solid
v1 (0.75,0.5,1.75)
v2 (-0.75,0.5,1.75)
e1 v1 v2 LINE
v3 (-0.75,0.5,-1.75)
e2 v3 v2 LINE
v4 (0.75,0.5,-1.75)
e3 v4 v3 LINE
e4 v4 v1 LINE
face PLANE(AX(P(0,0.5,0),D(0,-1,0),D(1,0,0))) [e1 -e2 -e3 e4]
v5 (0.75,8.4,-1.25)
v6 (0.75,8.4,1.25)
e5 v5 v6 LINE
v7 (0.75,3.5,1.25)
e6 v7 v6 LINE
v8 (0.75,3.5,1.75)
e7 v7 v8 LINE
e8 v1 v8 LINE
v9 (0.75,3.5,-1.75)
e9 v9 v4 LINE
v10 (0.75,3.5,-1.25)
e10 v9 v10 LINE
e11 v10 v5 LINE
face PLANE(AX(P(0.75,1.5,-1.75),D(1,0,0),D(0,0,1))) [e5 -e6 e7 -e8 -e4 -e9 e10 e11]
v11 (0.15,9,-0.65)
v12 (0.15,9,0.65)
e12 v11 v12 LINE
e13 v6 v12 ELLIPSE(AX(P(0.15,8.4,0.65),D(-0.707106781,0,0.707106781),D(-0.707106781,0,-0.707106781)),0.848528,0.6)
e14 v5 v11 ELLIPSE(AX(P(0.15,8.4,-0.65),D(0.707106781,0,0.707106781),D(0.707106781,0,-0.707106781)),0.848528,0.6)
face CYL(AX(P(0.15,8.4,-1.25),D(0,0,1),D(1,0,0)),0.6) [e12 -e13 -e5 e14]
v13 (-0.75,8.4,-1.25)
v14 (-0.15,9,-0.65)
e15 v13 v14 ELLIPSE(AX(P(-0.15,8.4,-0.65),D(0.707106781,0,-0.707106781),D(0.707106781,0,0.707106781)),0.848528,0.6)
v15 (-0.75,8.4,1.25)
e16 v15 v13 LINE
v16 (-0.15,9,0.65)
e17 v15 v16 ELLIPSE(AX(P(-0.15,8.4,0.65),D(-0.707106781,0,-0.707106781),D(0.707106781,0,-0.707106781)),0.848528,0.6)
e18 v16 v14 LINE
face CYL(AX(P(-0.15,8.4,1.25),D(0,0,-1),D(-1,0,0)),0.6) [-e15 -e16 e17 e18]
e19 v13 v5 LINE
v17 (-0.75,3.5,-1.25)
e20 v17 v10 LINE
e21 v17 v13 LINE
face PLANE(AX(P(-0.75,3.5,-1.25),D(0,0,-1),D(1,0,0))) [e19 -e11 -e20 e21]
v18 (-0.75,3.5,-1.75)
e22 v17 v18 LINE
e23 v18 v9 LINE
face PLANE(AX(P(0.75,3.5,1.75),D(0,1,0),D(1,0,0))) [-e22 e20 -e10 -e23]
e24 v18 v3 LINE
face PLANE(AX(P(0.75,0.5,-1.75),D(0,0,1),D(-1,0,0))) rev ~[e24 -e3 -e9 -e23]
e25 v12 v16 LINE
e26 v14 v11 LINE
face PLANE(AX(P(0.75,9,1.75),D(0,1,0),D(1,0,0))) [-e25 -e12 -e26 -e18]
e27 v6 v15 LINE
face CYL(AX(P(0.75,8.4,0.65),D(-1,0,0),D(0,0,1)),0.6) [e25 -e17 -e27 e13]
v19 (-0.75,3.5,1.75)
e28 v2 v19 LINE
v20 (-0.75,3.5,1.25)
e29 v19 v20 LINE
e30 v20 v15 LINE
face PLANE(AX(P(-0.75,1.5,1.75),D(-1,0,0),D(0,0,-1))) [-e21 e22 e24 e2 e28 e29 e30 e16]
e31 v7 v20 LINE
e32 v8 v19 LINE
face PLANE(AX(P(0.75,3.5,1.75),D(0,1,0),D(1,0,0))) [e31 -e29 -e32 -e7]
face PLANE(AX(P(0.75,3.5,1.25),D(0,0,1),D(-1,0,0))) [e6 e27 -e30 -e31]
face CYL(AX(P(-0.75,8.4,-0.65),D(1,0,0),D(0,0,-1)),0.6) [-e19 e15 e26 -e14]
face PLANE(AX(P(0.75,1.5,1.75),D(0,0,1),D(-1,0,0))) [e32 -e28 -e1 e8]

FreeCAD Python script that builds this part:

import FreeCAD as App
import Part
import Sketcher


def edges_at(feature, points):
    """Names of the edges that pass closest to the given points."""
    edges = feature.Shape.Edges
    near = lambda p: min(range(len(edges)), key=lambda i: edges[i].distToShape(Part.Vertex(*p))[0])
    return sorted({f"Edge{near(p) + 1}" for p in points})

doc = App.newDocument("Part")
body = doc.addObject("PartDesign::Body", "Body")
body.AllowCompound = True

# Sketch on XZ plane
sketch1 = body.newObject("Sketcher::SketchObject", "Sketch")
sketch1.AttachmentSupport = (doc.getObject("XZ_Plane"), [""])
sketch1.MapMode = "FlatFace"
sketch1.addGeometry(Part.LineSegment(App.Vector(-0.75, -1.6, 0), App.Vector(0.75, -1.6, 0)), False)
sketch1.addGeometry(Part.LineSegment(App.Vector(0.75, -1.6, 0), App.Vector(0.75, -2.6, 0)), False)
sketch1.addGeometry(Part.LineSegment(App.Vector(0.75, -2.6, 0), App.Vector(-0.75, -2.6, 0)), False)
sketch1.addGeometry(Part.LineSegment(App.Vector(-0.75, -2.6, 0), App.Vector(-0.75, -1.6, 0)), False)
sketch1.addGeometry(Part.LineSegment(App.Vector(0.75, 2.6, 0), App.Vector(0.75, 1.6, 0)), False)
sketch1.addGeometry(Part.LineSegment(App.Vector(0.75, 1.6, 0), App.Vector(-0.75, 1.6, 0)), False)
sketch1.addGeometry(Part.LineSegment(App.Vector(-0.75, 1.6, 0), App.Vector(-0.75, 2.6, 0)), False)
sketch1.addGeometry(Part.LineSegment(App.Vector(-0.75, 2.6, 0), App.Vector(0.75, 2.6, 0)), False)
sketch1.addConstraint(Sketcher.Constraint("Coincident", 0, 2, 1, 1))
sketch1.addConstraint(Sketcher.Constraint("Coincident", 1, 2, 2, 1))
sketch1.addConstraint(Sketcher.Constraint("Coincident", 2, 2, 3, 1))
sketch1.addConstraint(Sketcher.Constraint("Coincident", 3, 2, 0, 1))
sketch1.addConstraint(Sketcher.Constraint("Coincident", 4, 2, 5, 1))
sketch1.addConstraint(Sketcher.Constraint("Coincident", 5, 2, 6, 1))
sketch1.addConstraint(Sketcher.Constraint("Coincident", 6, 2, 7, 1))
sketch1.addConstraint(Sketcher.Constraint("Coincident", 7, 2, 4, 1))
sketch1.addConstraint(Sketcher.Constraint("Horizontal", 0))
sketch1.addConstraint(Sketcher.Constraint("Vertical", 1))
sketch1.addConstraint(Sketcher.Constraint("Horizontal", 2))
sketch1.addConstraint(Sketcher.Constraint("Vertical", 3))
sketch1.addConstraint(Sketcher.Constraint("Vertical", 4))
sketch1.addConstraint(Sketcher.Constraint("Horizontal", 5))
sketch1.addConstraint(Sketcher.Constraint("Vertical", 6))
sketch1.addConstraint(Sketcher.Constraint("Horizontal", 7))
sketch1.addConstraint(Sketcher.Constraint("Symmetric", 3, 2, 4, 2, -1, 1))
sketch1.addConstraint(Sketcher.Constraint("Symmetric", 1, 2, 6, 2, -1, 1))
sketch1.addConstraint(Sketcher.Constraint("Vertical", 1, 2, 4, 2))
sketch1.addConstraint(Sketcher.Constraint("DistanceY", 1, 2, 1, 1, 1.0))
sketch1.addConstraint(Sketcher.Constraint("DistanceX", 0, 1, 0, 2, 1.5))
sketch1.addConstraint(Sketcher.Constraint("DistanceY", 0, 2, 4, 2, 3.2))
pad1 = body.newObject("PartDesign::Pad", "Pad")
pad1.Profile = sketch1
pad1.Length = 0.5
pad1.Reversed = True

# Sketch on YZ plane
sketch2 = body.newObject("Sketcher::SketchObject", "Sketch001")
sketch2.AttachmentSupport = (doc.getObject("YZ_Plane"), [""])
sketch2.MapMode = "FlatFace"
sketch2.AttachmentOffset = App.Placement(App.Vector(0, 0, 0.75), App.Rotation())
sketch2.addGeometry(Part.LineSegment(App.Vector(1.5, 1.75, 0), App.Vector(0.5, 2.6, 0)), False)
sketch2.addGeometry(Part.LineSegment(App.Vector(0.5, 2.6, 0), App.Vector(0.5, -2.6, 0)), False)
sketch2.addGeometry(Part.LineSegment(App.Vector(0.5, -2.6, 0), App.Vector(1.5, -1.75, 0)), False)
sketch2.addGeometry(Part.LineSegment(App.Vector(1.5, -1.75, 0), App.Vector(1.5, 1.75, 0)), False)
sketch2.addConstraint(Sketcher.Constraint("Coincident", 0, 2, 1, 1))
sketch2.addConstraint(Sketcher.Constraint("Coincident", 1, 2, 2, 1))
sketch2.addConstraint(Sketcher.Constraint("Coincident", 2, 2, 3, 1))
sketch2.addConstraint(Sketcher.Constraint("Coincident", 3, 2, 0, 1))
sketch2.addConstraint(Sketcher.Constraint("Vertical", 1))
sketch2.addConstraint(Sketcher.Constraint("Vertical", 3))
sketch2.addConstraint(Sketcher.Constraint("Equal", 0, 2))
sketch2.addConstraint(Sketcher.Constraint("DistanceY", 3, 1, 3, 2, 3.5))
sketch2.addConstraint(Sketcher.Constraint("DistanceX", 1, 2, 2, 2, 1.0))
sketch2.addConstraint(Sketcher.Constraint("DistanceY", 1, 2, 1, 1, 5.2))
sketch2.addConstraint(Sketcher.Constraint("DistanceX", -1, 1, 0, 2, 0.5))
sketch2.addConstraint(Sketcher.Constraint("DistanceY", -1, 1, 0, 2, 2.6))
pad2 = body.newObject("PartDesign::Pad", "Pad001")
pad2.Profile = sketch2
pad2.Length = 1.5
pad2.Reversed = True

# Sketch on XZ plane
sketch3 = body.newObject("Sketcher::SketchObject", "Sketch002")
sketch3.AttachmentSupport = (doc.getObject("XZ_Plane"), [""])
sketch3.MapMode = "FlatFace"
sketch3.AttachmentOffset = App.Placement(App.Vector(0, 0, -1.5), App.Rotation())
sketch3.addGeometry(Part.LineSegment(App.Vector(-0.75, -1.75, 0), App.Vector(-0.75, 1.75, 0)), False)
sketch3.addGeometry(Part.LineSegment(App.Vector(-0.75, 1.75, 0), App.Vector(0.75, 1.75, 0)), False)
sketch3.addGeometry(Part.LineSegment(App.Vector(0.75, 1.75, 0), App.Vector(0.75, -1.75, 0)), False)
sketch3.addGeometry(Part.LineSegment(App.Vector(0.75, -1.75, 0), App.Vector(-0.75, -1.75, 0)), False)
sketch3.addConstraint(Sketcher.Constraint("Coincident", 0, 2, 1, 1))
sketch3.addConstraint(Sketcher.Constraint("Coincident", 1, 2, 2, 1))
sketch3.addConstraint(Sketcher.Constraint("Coincident", 2, 2, 3, 1))
sketch3.addConstraint(Sketcher.Constraint("Coincident", 3, 2, 0, 1))
sketch3.addConstraint(Sketcher.Constraint("Vertical", 0))
sketch3.addConstraint(Sketcher.Constraint("Horizontal", 1))
sketch3.addConstraint(Sketcher.Constraint("Vertical", 2))
sketch3.addConstraint(Sketcher.Constraint("Horizontal", 3))
sketch3.addConstraint(Sketcher.Constraint("Symmetric", 0, 2, 2, 2, -1, 1))
sketch3.addConstraint(Sketcher.Constraint("DistanceX", 1, 1, 1, 2, 1.5))
sketch3.addConstraint(Sketcher.Constraint("DistanceY", 0, 1, 0, 2, 3.5))
pad3 = body.newObject("PartDesign::Pad", "Pad002")
pad3.Profile = sketch3
pad3.Length = 2
pad3.Reversed = True

# Sketch on XZ plane
sketch4 = body.newObject("Sketcher::SketchObject", "Sketch003")
sketch4.AttachmentSupport = (doc.getObject("XZ_Plane"), [""])
sketch4.MapMode = "FlatFace"
sketch4.AttachmentOffset = App.Placement(App.Vector(0, 0, -3.5), App.Rotation())
sketch4.addGeometry(Part.LineSegment(App.Vector(0.75, -1.25, 0), App.Vector(-0.75, -1.25, 0)), False)
sketch4.addGeometry(Part.LineSegment(App.Vector(-0.75, -1.25, 0), App.Vector(-0.75, 1.25, 0)), False)
sketch4.addGeometry(Part.LineSegment(App.Vector(-0.75, 1.25, 0), App.Vector(0.75, 1.25, 0)), False)
sketch4.addGeometry(Part.LineSegment(App.Vector(0.75, 1.25, 0), App.Vector(0.75, -1.25, 0)), False)
sketch4.addConstraint(Sketcher.Constraint("Coincident", 0, 2, 1, 1))
sketch4.addConstraint(Sketcher.Constraint("Coincident", 1, 2, 2, 1))
sketch4.addConstraint(Sketcher.Constraint("Coincident", 2, 2, 3, 1))
sketch4.addConstraint(Sketcher.Constraint("Coincident", 3, 2, 0, 1))
sketch4.addConstraint(Sketcher.Constraint("Horizontal", 0))
sketch4.addConstraint(Sketcher.Constraint("Vertical", 1))
sketch4.addConstraint(Sketcher.Constraint("Horizontal", 2))
sketch4.addConstraint(Sketcher.Constraint("Vertical", 3))
sketch4.addConstraint(Sketcher.Constraint("Symmetric", 0, 2, 2, 2, -1, 1))
sketch4.addConstraint(Sketcher.Constraint("DistanceY", 1, 1, 1, 2, 2.5))
sketch4.addConstraint(Sketcher.Constraint("DistanceX", 0, 2, 0, 1, 1.5))
pad4 = body.newObject("PartDesign::Pad", "Pad003")
pad4.Profile = sketch4
pad4.Length = 5.5
pad4.Reversed = True
doc.recompute()

fillet = body.newObject("PartDesign::Fillet", "Fillet")
fillet.Base = (pad4, edges_at(pad4, [
    (0, 9, -1.25),
    (-0.75, 9, 0),
    (0, 9, 1.25),
    (0.75, 9, 0),
]))
fillet.Radius = 0.6

# Sketch on XZ plane
sketch5 = body.newObject("Sketcher::SketchObject", "Sketch004")
sketch5.AttachmentSupport = (doc.getObject("XZ_Plane"), [""])
sketch5.MapMode = "FlatFace"
sketch5.addGeometry(Part.LineSegment(App.Vector(0.75, 2.6, 0), App.Vector(-0.75, 2.6, 0)), False)
sketch5.addGeometry(Part.LineSegment(App.Vector(-0.75, 2.6, 0), App.Vector(-0.75, -2.6, 0)), False)
sketch5.addGeometry(Part.LineSegment(App.Vector(-0.75, -2.6, 0), App.Vector(0.75, -2.6, 0)), False)
sketch5.addGeometry(Part.LineSegment(App.Vector(0.75, -2.6, 0), App.Vector(0.75, 2.6, 0)), False)
sketch5.addConstraint(Sketcher.Constraint("Coincident", 0, 2, 1, 1))
sketch5.addConstraint(Sketcher.Constraint("Coincident", 1, 2, 2, 1))
sketch5.addConstraint(Sketcher.Constraint("Coincident", 2, 2, 3, 1))
sketch5.addConstraint(Sketcher.Constraint("Coincident", 3, 2, 0, 1))
sketch5.addConstraint(Sketcher.Constraint("Horizontal", 0))
sketch5.addConstraint(Sketcher.Constraint("Vertical", 1))
sketch5.addConstraint(Sketcher.Constraint("Horizontal", 2))
sketch5.addConstraint(Sketcher.Constraint("Vertical", 3))
sketch5.addConstraint(Sketcher.Constraint("Symmetric", 0, 2, 2, 2, -1, 1))
sketch5.addConstraint(Sketcher.Constraint("DistanceX", 0, 2, 0, 1, 1.5))
sketch5.addConstraint(Sketcher.Constraint("DistanceY", 1, 2, 1, 1, 5.2))
pocket1 = body.newObject("PartDesign::Pocket", "Pocket")
pocket1.Profile = sketch5
pocket1.Length = 0.5

# Sketch on XZ plane
sketch6 = body.newObject("Sketcher::SketchObject", "Sketch005")
sketch6.AttachmentSupport = (doc.getObject("XZ_Plane"), [""])
sketch6.MapMode = "FlatFace"
sketch6.AttachmentOffset = App.Placement(App.Vector(0, 0, -0.5), App.Rotation())
sketch6.addGeometry(Part.LineSegment(App.Vector(0.75, 2.6, 0), App.Vector(-0.75, 2.6, 0)), False)
sketch6.addGeometry(Part.LineSegment(App.Vector(-0.75, 2.6, 0), App.Vector(-0.75, 1.75, 0)), False)
sketch6.addGeometry(Part.LineSegment(App.Vector(-0.75, 1.75, 0), App.Vector(0.75, 1.75, 0)), False)
sketch6.addGeometry(Part.LineSegment(App.Vector(0.75, 1.75, 0), App.Vector(0.75, 2.6, 0)), False)
sketch6.addGeometry(Part.LineSegment(App.Vector(-0.75, -2.6, 0), App.Vector(0.75, -2.6, 0)), False)
sketch6.addGeometry(Part.LineSegment(App.Vector(0.75, -2.6, 0), App.Vector(0.75, -1.75, 0)), False)
sketch6.addGeometry(Part.LineSegment(App.Vector(0.75, -1.75, 0), App.Vector(-0.75, -1.75, 0)), False)
sketch6.addGeometry(Part.LineSegment(App.Vector(-0.75, -1.75, 0), App.Vector(-0.75, -2.6, 0)), False)
sketch6.addConstraint(Sketcher.Constraint("Coincident", 0, 2, 1, 1))
sketch6.addConstraint(Sketcher.Constraint("Coincident", 1, 2, 2, 1))
sketch6.addConstraint(Sketcher.Constraint("Coincident", 2, 2, 3, 1))
sketch6.addConstraint(Sketcher.Constraint("Coincident", 3, 2, 0, 1))
sketch6.addConstraint(Sketcher.Constraint("Coincident", 4, 2, 5, 1))
sketch6.addConstraint(Sketcher.Constraint("Coincident", 5, 2, 6, 1))
sketch6.addConstraint(Sketcher.Constraint("Coincident", 6, 2, 7, 1))
sketch6.addConstraint(Sketcher.Constraint("Coincident", 7, 2, 4, 1))
sketch6.addConstraint(Sketcher.Constraint("Horizontal", 0))
sketch6.addConstraint(Sketcher.Constraint("Vertical", 1))
sketch6.addConstraint(Sketcher.Constraint("Horizontal", 2))
sketch6.addConstraint(Sketcher.Constraint("Vertical", 3))
sketch6.addConstraint(Sketcher.Constraint("Horizontal", 4))
sketch6.addConstraint(Sketcher.Constraint("Vertical", 5))
sketch6.addConstraint(Sketcher.Constraint("Horizontal", 6))
sketch6.addConstraint(Sketcher.Constraint("Vertical", 7))
sketch6.addConstraint(Sketcher.Constraint("Symmetric", 0, 2, 4, 2, -1, 1))
sketch6.addConstraint(Sketcher.Constraint("Symmetric", 2, 2, 6, 2, -1, 1))
sketch6.addConstraint(Sketcher.Constraint("Vertical", 3, 2, 4, 2))
sketch6.addConstraint(Sketcher.Constraint("DistanceX", 0, 2, 0, 1, 1.5))
sketch6.addConstraint(Sketcher.Constraint("DistanceY", 1, 2, 1, 1, 0.85))
sketch6.addConstraint(Sketcher.Constraint("DistanceY", -1, 1, 0, 2, 2.6))
pocket2 = body.newObject("PartDesign::Pocket", "Pocket001")
pocket2.Profile = sketch6
pocket2.Length = 2

doc.recompute()
